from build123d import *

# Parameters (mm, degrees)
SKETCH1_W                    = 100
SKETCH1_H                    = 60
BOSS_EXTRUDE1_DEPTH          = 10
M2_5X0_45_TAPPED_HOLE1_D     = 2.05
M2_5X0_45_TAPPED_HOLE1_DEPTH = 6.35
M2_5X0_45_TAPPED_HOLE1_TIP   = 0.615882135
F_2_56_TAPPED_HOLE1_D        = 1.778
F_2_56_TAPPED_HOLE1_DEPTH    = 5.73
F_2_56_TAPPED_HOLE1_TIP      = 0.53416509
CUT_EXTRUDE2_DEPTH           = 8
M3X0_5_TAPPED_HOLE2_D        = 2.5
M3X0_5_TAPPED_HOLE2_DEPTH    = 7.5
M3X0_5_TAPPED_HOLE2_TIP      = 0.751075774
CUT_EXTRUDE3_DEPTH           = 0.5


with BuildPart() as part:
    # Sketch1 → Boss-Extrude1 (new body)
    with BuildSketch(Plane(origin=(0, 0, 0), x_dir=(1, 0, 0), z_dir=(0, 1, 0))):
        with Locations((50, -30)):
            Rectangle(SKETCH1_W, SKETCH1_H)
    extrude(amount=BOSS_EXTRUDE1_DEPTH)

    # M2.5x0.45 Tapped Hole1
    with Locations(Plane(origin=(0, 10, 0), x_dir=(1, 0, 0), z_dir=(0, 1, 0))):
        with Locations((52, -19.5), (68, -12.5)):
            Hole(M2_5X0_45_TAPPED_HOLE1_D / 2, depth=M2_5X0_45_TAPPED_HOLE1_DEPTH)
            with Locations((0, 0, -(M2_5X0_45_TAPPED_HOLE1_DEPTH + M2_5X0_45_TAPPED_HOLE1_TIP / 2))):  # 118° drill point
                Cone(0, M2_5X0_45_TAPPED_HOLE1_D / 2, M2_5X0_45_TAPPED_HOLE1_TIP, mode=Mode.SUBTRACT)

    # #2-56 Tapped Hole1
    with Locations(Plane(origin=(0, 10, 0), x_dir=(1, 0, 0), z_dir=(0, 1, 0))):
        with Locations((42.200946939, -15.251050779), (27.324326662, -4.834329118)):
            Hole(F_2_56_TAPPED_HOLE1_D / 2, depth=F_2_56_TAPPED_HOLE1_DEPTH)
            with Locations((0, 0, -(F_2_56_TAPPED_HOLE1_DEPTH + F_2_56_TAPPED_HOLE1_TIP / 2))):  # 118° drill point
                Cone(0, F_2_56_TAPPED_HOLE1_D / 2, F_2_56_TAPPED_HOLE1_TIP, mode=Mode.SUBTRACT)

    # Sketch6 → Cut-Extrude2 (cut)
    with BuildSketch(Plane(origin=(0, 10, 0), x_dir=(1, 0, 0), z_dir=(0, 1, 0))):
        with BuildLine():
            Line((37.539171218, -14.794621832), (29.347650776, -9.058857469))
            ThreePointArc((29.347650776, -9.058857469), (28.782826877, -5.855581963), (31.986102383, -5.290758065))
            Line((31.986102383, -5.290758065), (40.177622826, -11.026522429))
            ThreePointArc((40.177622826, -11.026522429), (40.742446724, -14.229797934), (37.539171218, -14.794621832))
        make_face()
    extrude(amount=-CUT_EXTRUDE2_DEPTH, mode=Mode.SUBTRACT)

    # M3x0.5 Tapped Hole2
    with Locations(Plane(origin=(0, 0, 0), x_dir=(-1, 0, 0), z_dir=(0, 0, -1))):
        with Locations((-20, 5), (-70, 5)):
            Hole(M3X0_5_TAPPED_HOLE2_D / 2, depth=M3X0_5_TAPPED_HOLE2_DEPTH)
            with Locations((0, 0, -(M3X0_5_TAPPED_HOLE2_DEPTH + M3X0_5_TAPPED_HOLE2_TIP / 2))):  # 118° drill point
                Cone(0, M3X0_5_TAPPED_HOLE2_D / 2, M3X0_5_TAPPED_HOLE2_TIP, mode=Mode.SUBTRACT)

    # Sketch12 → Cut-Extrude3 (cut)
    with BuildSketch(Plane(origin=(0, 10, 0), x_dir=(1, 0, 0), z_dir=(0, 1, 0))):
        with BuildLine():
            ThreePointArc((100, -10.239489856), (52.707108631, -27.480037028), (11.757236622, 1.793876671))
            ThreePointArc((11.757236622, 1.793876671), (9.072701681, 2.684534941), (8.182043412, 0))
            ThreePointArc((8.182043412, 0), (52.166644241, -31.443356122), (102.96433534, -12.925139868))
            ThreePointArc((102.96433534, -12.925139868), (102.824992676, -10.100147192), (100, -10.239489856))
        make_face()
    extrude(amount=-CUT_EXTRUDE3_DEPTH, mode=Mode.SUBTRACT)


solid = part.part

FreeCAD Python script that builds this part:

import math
import FreeCAD as App
import Part
import Sketcher

V = App.Vector
Q = App.Units.Quantity

doc = App.newDocument("Part")
params = doc.addObject("Spreadsheet::Sheet", "Params")
for row, (alias, value) in enumerate([
    ("sketch1_width", "100 mm"),
    ("sketch1_height", "60 mm"),
    ("pad1_length", "10 mm"),
    ("sketch2_diameter", "2.05 mm"),
    ("hole_diameter", "2.05 mm"),
    ("hole_depth", "6.35 mm"),
    ("hole2_diameter", "1.778 mm"),
    ("hole2_depth", "5.73 mm"),
    ("sketch4_radius", "2.3 mm"),
    ("sketch4_length", "10 mm"),
    ("pocket1_length", "8 mm"),
    ("sketch5_diameter", "2.5 mm"),
    ("hole3_diameter", "2.5 mm"),
    ("hole3_depth", "7.5 mm"),
    ("sketch6_radius", "2 mm"),
    ("pocket2_length", "0.5 mm"),
], start=1):
    params.set(f"A{row}", alias)
    params.set(f"B{row}", "=" + value)
    params.setAlias(f"B{row}", alias)

body = doc.addObject("PartDesign::Body", "Body")

sketch1 = body.newObject("Sketcher::SketchObject", "Sketch")
sketch1.AttachmentSupport = (doc.getObject("XZ_Plane"), [""])
sketch1.MapMode = "FlatFace"
sketch1.addGeometry([
    Part.LineSegment(V(0, 0, 0), V(0, 60, 0)),
    Part.LineSegment(V(0, 60, 0), V(100, 60, 0)),
    Part.LineSegment(V(100, 60, 0), V(100, 0, 0)),
    Part.LineSegment(V(100, 0, 0), V(0, 0, 0)),
], False)
sketch1.addConstraint([
    Sketcher.Constraint("Coincident", 0, 2, 1, 1),
    Sketcher.Constraint("Coincident", 1, 2, 2, 1),
    Sketcher.Constraint("Coincident", 2, 2, 3, 1),
    Sketcher.Constraint("Coincident", 3, 2, 0, 1),
    Sketcher.Constraint("Vertical", 0),
    Sketcher.Constraint("Horizontal", 1),
    Sketcher.Constraint("Vertical", 2),
    Sketcher.Constraint("Horizontal", 3),
    Sketcher.Constraint("Coincident", 3, 2, -1, 1),
    Sketcher.Constraint("DistanceX", 1, 1, 1, 2, 100.0),
    Sketcher.Constraint("DistanceY", 0, 1, 0, 2, 60.0),
])
sketch1.setExpression("Constraints[9]", "Params.sketch1_width")
sketch1.setExpression("Constraints[10]", "Params.sketch1_height")
pad1 = body.newObject("PartDesign::Pad", "Pad")
pad1.Profile = sketch1
pad1.setExpression("Length", "Params.pad1_length")
pad1.Reversed = True

sketch2 = body.newObject("Sketcher::SketchObject", "Sketch001")
sketch2.AttachmentSupport = (doc.getObject("XZ_Plane"), [""])
sketch2.MapMode = "FlatFace"
sketch2.AttachmentOffset = App.Placement(V(0, 0, -10), App.Rotation())
sketch2.addGeometry([
    Part.Circle(V(52, 19.5, 0), V(0, 0, 1), 1),
    Part.Circle(V(68, 12.5, 0), V(0, 0, 1), 1),
], False)
sketch2.addConstraint([
    Sketcher.Constraint("Equal", 0, 1),
    Sketcher.Constraint("Diameter", 0, 2.05),
    Sketcher.Constraint("DistanceX", -1, 1, 0, 3, 52.0),
    Sketcher.Constraint("DistanceX", -1, 1, 1, 3, 68.0),
    Sketcher.Constraint("DistanceY", 1, 3, 0, 3, 7.0),
    Sketcher.Constraint("DistanceY", -1, 1, 0, 3, 19.5),
])
sketch2.setExpression("Constraints[1]", "Params.sketch2_diameter")
doc.recompute()
hole = body.newObject("PartDesign::Hole", "Hole")
hole.Profile = sketch2
hole.ThreadType = "None"
hole.setExpression("Diameter", "Params.hole_diameter")
hole.DepthType = "Dimension"
hole.setExpression("Depth", "Params.hole_depth")
hole.DrillPoint = "Angled"
hole.DrillPointAngle = 118
hole.Reversed = True

sketch3 = body.newObject("Sketcher::SketchObject", "Sketch002")
sketch3.AttachmentSupport = (doc.getObject("XZ_Plane"), [""])
sketch3.MapMode = "FlatFace"
sketch3.AttachmentOffset = App.Placement(V(0, 0, -10), App.Rotation())
sketch3.addGeometry([
    Part.Circle(V(42.2, 15.3, 0), V(0, 0, 1), 0.9),
    Part.Circle(V(27.3, 4.8, 0), V(0, 0, 1), 0.9),
], False)
sketch3.addConstraint([
    Sketcher.Constraint("Equal", 0, 1),
    Sketcher.Constraint("Diameter", 0, 1.778),
    Sketcher.Constraint("DistanceY", -1, 1, 0, 3, 15.251051),
    Sketcher.Constraint("DistanceY", -1, 1, 1, 3, 4.834329),
    Sketcher.Constraint("DistanceX", 1, 3, 0, 3, 14.87662),
    Sketcher.Constraint("DistanceX", -1, 1, 0, 3, 42.200947),
])
doc.recompute()
hole2 = body.newObject("PartDesign::Hole", "Hole001")
hole2.Profile = sketch3
hole2.ThreadType = "None"
hole2.setExpression("Diameter", "Params.hole2_diameter")
hole2.DepthType = "Dimension"
hole2.setExpression("Depth", "Params.hole2_depth")
hole2.DrillPoint = "Angled"
hole2.DrillPointAngle = 118
hole2.Reversed = True

sketch4 = body.newObject("Sketcher::SketchObject", "Sketch003")
sketch4.AttachmentSupport = (doc.getObject("XZ_Plane"), [""])
sketch4.MapMode = "FlatFace"
sketch4.AttachmentOffset = App.Placement(V(0, 0, -10), App.Rotation())
sketch4.addGeometry([
    Part.LineSegment(V(29.3, 9.1, 0), V(37.5, 14.8, 0)),
    Part.ArcOfCircle(Part.Circle(V(38.9, 12.9, 0), V(0, 0, 1), 2.3), math.radians(-55), math.radians(125)),
    Part.LineSegment(V(40.2, 11, 0), V(32, 5.3, 0)),
    Part.ArcOfCircle(Part.Circle(V(30.7, 7.2, 0), V(0, 0, 1), 2.3), math.radians(125), math.radians(305)),
], False)
sketch4.addConstraint([
    Sketcher.Constraint("Tangent", 0, 2, 1, 2),
    Sketcher.Constraint("Tangent", 1, 1, 2, 1),
    Sketcher.Constraint("Tangent", 2, 2, 3, 2),
    Sketcher.Constraint("Tangent", 3, 1, 0, 1),
    Sketcher.Constraint("Equal", 1, 3),
    Sketcher.Constraint("Radius", 1, 2.3),
    Sketcher.Constraint("Angle", 0, Q("35 deg")),
    Sketcher.Constraint("Distance", 0, 10.0),
    Sketcher.Constraint("DistanceX", -1, 1, 0, 2, 37.539171),
    Sketcher.Constraint("DistanceY", -1, 1, 0, 2, 14.794622),
])
sketch4.setExpression("Constraints[5]", "Params.sketch4_radius")
sketch4.setExpression("Constraints[7]", "Params.sketch4_length")
pocket1 = body.newObject("PartDesign::Pocket", "Pocket")
pocket1.Profile = sketch4
pocket1.setExpression("Length", "Params.pocket1_length")
pocket1.Reversed = True

sketch5 = body.newObject("Sketcher::SketchObject", "Sketch004")
sketch5.AttachmentSupport = (doc.getObject("XY_Plane"), [""])
sketch5.MapMode = "FlatFace"
sketch5.addGeometry([
    Part.Circle(V(20, 5, 0), V(0, 0, 1), 1.2),
    Part.Circle(V(70, 5, 0), V(0, 0, 1), 1.2),
], False)
sketch5.addConstraint([
    Sketcher.Constraint("Equal", 0, 1),
    Sketcher.Constraint("Horizontal", 0, 3, 1, 3),
    Sketcher.Constraint("Diameter", 0, 2.5),
    Sketcher.Constraint("DistanceX", -1, 1, 0, 3, 20.0),
    Sketcher.Constraint("DistanceY", -1, 1, 0, 3, 5.0),
    Sketcher.Constraint("DistanceX", -1, 1, 1, 3, 70.0),
])
sketch5.setExpression("Constraints[2]", "Params.sketch5_diameter")
doc.recompute()
hole3 = body.newObject("PartDesign::Hole", "Hole002")
hole3.Profile = sketch5
hole3.ThreadType = "None"
hole3.setExpression("Diameter", "Params.hole3_diameter")
hole3.DepthType = "Dimension"
hole3.setExpression("Depth", "Params.hole3_depth")
hole3.DrillPoint = "Angled"
hole3.DrillPointAngle = 118
hole3.Reversed = True

sketch6 = body.newObject("Sketcher::SketchObject", "Sketch005")
sketch6.AttachmentSupport = (doc.getObject("XZ_Plane"), [""])
sketch6.MapMode = "FlatFace"
sketch6.AttachmentOffset = App.Placement(V(0, 0, -10), App.Rotation())
sketch6.addGeometry([
    Part.ArcOfCircle(Part.Circle(V(60, -26, 0), V(0, 0, 1), 54), math.radians(42), math.radians(153)),
    Part.ArcOfCircle(Part.Circle(V(10, -0.9, 0), V(0, 0, 1), 2), math.radians(153), math.radians(333)),
    Part.ArcOfCircle(Part.Circle(V(60, -26, 0), V(0, 0, 1), 58), math.radians(42), math.radians(153)),
    Part.ArcOfCircle(Part.Circle(V(101.5, 11.6, 0), V(0, 0, 1), 2), math.radians(-138), math.radians(42)),
], False)
sketch6.addConstraint([
    Sketcher.Constraint("Tangent", 0, 2, 1, 2),
    Sketcher.Constraint("Tangent", 1, 1, 2, 2),
    Sketcher.Constraint("Tangent", 2, 1, 3, 2),
    Sketcher.Constraint("Tangent", 3, 1, 0, 1),
    Sketcher.Constraint("Coincident", 2, 3, 0, 3),
    Sketcher.Constraint("PointOnObject", 1, 1, -1),
    Sketcher.Constraint("Radius", 1, 2.0),
    Sketcher.Constraint("DistanceX", -1, 1, 0, 3, 60.0),
    Sketcher.Constraint("DistanceY", 0, 3, -1, 1, 26.0),
    Sketcher.Constraint("DistanceX", -1, 1, 3, 1, 100.0),
    Sketcher.Constraint("Radius", 0, 53.975),
])
sketch6.setExpression("Constraints[6]", "Params.sketch6_radius")
pocket2 = body.newObject("PartDesign::Pocket", "Pocket001")
pocket2.Profile = sketch6
pocket2.setExpression("Length", "Params.pocket2_length")
pocket2.Reversed = True

doc.recompute()
